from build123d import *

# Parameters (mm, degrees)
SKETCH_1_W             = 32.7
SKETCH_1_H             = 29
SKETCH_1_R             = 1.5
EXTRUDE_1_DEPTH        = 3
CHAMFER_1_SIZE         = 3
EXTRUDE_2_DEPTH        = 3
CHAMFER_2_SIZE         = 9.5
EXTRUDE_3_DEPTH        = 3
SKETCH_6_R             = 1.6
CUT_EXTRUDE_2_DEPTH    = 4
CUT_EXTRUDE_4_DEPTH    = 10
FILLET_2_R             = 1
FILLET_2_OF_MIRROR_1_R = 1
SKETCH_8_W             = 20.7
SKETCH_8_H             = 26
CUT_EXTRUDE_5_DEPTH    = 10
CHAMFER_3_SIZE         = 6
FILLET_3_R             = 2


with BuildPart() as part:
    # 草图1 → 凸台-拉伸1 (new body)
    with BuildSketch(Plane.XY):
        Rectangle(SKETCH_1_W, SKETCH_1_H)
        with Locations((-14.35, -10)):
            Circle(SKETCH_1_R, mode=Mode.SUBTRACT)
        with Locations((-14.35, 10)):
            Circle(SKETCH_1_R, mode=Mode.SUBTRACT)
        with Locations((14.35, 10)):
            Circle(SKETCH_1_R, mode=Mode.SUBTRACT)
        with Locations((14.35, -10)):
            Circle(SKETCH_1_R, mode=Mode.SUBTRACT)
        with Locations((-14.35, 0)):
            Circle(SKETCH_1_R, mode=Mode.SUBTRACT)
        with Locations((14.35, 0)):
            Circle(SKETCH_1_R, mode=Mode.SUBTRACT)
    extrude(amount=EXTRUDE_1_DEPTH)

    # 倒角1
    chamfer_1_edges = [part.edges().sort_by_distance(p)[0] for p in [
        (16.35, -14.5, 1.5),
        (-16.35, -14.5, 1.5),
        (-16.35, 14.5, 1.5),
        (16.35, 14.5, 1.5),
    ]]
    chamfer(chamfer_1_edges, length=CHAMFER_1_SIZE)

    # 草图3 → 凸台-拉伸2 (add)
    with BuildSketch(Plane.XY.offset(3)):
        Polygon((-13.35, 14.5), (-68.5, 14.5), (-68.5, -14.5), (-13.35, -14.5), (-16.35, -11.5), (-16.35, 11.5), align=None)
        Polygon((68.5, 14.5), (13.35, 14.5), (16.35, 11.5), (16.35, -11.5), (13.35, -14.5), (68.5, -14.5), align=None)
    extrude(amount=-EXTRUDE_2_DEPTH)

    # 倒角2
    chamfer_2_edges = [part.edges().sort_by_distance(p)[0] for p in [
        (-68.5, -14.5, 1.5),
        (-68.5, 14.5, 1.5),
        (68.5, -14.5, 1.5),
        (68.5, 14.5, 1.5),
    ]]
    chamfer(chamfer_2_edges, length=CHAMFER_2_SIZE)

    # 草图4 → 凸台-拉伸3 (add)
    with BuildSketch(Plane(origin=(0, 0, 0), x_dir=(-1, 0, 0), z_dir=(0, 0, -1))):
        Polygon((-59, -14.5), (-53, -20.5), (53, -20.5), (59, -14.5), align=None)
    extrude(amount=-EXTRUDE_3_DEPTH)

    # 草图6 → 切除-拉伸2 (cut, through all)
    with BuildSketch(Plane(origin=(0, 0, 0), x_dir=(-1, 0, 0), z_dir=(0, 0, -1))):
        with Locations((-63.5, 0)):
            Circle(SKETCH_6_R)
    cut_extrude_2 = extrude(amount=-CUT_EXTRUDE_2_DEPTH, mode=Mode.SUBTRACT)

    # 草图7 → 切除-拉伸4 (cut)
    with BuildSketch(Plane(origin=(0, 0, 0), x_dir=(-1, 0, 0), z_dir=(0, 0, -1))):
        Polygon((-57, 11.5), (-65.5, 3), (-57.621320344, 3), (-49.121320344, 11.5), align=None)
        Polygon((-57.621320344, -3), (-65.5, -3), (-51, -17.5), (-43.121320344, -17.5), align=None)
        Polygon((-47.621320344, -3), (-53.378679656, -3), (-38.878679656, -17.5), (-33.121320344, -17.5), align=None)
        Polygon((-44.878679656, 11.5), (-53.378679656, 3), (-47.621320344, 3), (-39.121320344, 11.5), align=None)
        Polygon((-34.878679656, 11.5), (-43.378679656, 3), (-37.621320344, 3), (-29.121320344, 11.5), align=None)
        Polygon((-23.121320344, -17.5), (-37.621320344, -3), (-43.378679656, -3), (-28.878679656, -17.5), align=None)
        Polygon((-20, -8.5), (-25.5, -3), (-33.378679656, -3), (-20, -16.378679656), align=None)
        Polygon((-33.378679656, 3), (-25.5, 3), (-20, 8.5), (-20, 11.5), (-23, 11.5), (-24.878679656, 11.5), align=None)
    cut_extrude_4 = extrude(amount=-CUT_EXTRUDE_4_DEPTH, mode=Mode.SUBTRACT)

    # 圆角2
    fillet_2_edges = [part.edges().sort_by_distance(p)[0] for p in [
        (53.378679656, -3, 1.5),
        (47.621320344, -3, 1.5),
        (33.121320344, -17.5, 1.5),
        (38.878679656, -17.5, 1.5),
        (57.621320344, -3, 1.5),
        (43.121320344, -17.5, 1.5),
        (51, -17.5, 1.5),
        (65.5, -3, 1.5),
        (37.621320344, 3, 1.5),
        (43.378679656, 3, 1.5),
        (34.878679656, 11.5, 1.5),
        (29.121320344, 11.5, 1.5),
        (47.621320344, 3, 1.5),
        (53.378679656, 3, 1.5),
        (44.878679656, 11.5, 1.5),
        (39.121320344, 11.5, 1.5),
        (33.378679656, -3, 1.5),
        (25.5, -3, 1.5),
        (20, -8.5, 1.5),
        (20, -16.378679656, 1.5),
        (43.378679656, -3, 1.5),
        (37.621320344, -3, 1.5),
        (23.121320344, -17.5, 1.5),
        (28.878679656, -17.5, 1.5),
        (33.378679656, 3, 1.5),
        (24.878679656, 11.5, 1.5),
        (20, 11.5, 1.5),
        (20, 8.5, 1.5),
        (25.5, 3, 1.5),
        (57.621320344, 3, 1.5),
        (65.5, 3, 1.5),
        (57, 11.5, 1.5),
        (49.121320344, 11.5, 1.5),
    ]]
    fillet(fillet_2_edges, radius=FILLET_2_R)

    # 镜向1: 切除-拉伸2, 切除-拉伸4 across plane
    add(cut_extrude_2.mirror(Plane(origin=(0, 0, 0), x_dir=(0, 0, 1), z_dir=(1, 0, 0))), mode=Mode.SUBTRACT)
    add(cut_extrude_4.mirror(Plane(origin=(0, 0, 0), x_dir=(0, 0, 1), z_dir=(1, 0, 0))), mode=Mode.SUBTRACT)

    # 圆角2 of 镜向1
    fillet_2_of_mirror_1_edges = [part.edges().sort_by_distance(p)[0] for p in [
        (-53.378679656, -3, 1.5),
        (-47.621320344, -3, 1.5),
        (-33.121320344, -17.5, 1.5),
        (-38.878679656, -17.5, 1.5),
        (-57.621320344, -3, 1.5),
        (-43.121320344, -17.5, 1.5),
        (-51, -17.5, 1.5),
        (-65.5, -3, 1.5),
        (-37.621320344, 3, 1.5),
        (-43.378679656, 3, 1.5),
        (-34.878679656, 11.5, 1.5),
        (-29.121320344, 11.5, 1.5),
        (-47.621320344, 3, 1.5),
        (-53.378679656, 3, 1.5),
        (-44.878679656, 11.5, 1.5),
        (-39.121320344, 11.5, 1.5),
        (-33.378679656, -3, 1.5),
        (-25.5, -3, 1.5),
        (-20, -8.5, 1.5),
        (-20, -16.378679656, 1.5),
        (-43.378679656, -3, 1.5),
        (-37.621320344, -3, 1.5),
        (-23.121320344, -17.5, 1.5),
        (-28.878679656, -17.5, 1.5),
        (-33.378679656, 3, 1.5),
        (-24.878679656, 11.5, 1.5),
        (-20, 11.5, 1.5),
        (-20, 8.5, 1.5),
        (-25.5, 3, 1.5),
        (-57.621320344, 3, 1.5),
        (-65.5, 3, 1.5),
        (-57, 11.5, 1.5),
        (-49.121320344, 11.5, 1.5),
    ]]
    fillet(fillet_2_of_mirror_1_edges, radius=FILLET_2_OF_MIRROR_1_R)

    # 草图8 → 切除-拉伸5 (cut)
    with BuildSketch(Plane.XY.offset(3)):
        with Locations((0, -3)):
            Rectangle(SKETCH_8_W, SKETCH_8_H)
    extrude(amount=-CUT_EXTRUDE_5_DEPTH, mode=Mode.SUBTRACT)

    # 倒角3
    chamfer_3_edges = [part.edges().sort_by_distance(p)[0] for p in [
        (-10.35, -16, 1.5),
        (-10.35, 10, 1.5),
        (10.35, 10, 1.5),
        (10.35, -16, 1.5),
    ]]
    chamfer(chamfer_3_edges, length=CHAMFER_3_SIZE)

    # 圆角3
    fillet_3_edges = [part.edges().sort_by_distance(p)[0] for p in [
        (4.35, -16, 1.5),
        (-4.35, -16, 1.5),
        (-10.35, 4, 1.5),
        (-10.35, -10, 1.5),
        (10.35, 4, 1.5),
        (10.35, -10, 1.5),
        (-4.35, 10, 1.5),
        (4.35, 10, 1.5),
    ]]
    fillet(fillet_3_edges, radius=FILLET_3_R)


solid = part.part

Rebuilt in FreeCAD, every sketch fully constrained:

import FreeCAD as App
import Part
import Sketcher

V = App.Vector
Q = App.Units.Quantity


def edges_at(feature, points):
    """Names of the edges that pass closest to the given points."""
    edges = feature.Shape.Edges
    near = lambda p: min(range(len(edges)), key=lambda i: edges[i].distToShape(Part.Vertex(*p))[0])
    return sorted({f"Edge{near(p) + 1}" for p in points})

doc = App.newDocument("Part")
body = doc.addObject("PartDesign::Body", "Body")

# Sketch on XY plane
sketch1 = body.newObject("Sketcher::SketchObject", "Sketch")
sketch1.AttachmentSupport = (doc.getObject("XY_Plane"), [""])
sketch1.MapMode = "FlatFace"
sketch1.addGeometry([
    Part.LineSegment(V(-16.4, 14.5, 0), V(-16.4, -14.5, 0)),  # 0
    Part.LineSegment(V(-16.4, -14.5, 0), V(16.4, -14.5, 0)),  # 1
    Part.LineSegment(V(16.4, -14.5, 0), V(16.4, 14.5, 0)),  # 2
    Part.LineSegment(V(16.4, 14.5, 0), V(-16.4, 14.5, 0)),  # 3
    Part.Circle(V(-14.3, -10, 0), V(0, 0, 1), 1.5),  # 4
    Part.Circle(V(14.3, -10, 0), V(0, 0, 1), 1.5),  # 5
    Part.Circle(V(-14.3, 0, 0), V(0, 0, 1), 1.5),  # 6
    Part.Circle(V(-14.3, 10, 0), V(0, 0, 1), 1.5),  # 7
    Part.Circle(V(14.3, 0, 0), V(0, 0, 1), 1.5),  # 8
    Part.Circle(V(14.3, 10, 0), V(0, 0, 1), 1.5),  # 9
], False)
sketch1.addConstraint([
    Sketcher.Constraint("Coincident", 0, 2, 1, 1),
    Sketcher.Constraint("Coincident", 1, 2, 2, 1),
    Sketcher.Constraint("Coincident", 2, 2, 3, 1),
    Sketcher.Constraint("Coincident", 3, 2, 0, 1),
    Sketcher.Constraint("Vertical", 0),
    Sketcher.Constraint("Horizontal", 1),
    Sketcher.Constraint("Vertical", 2),
    Sketcher.Constraint("Horizontal", 3),
    Sketcher.Constraint("Equal", 4, 5),
    Sketcher.Constraint("Equal", 5, 6),
    Sketcher.Constraint("Equal", 6, 7),
    Sketcher.Constraint("Equal", 7, 8),
    Sketcher.Constraint("Equal", 8, 9),
    Sketcher.Constraint("Symmetric", 5, 3, 7, 3, -1, 1),
    Sketcher.Constraint("Symmetric", 6, 3, 8, 3, -1, 1),
    Sketcher.Constraint("Symmetric", 4, 3, 9, 3, -1, 1),
    Sketcher.Constraint("Symmetric", 0, 2, 2, 2, -1, 1),
    Sketcher.Constraint("Symmetric", 4, 3, 5, 3, -2),
    Sketcher.Constraint("PointOnObject", 6, 3, -1),
    Sketcher.Constraint("Vertical", 4, 3, 6, 3),
    Sketcher.Constraint("Diameter", 4, Q("3 mm")),
    Sketcher.Constraint("DistanceY", 0, 2, 0, 1, Q("29 mm")),
    Sketcher.Constraint("DistanceX", 1, 1, 1, 2, Q("32.7 mm")),
    Sketcher.Constraint("DistanceY", 4, 3, -1, 1, Q("10 mm")),
    Sketcher.Constraint("DistanceX", 0, 2, 4, 3, Q("2 mm")),
])
pad1 = body.newObject("PartDesign::Pad", "Pad")
pad1.Profile = sketch1
pad1.Length = 3
doc.recompute()

chamfer = body.newObject("PartDesign::Chamfer", "Chamfer")
chamfer.Base = (pad1, edges_at(pad1, [
    (16.35, -14.5, 1.5),
    (-16.35, -14.5, 1.5),
    (-16.35, 14.5, 1.5),
    (16.35, 14.5, 1.5),
]))
chamfer.Size = 3

# Sketch on XY plane
sketch2 = body.newObject("Sketcher::SketchObject", "Sketch001")
sketch2.AttachmentSupport = (doc.getObject("XY_Plane"), [""])
sketch2.MapMode = "FlatFace"
sketch2.AttachmentOffset = App.Placement(V(0, 0, 3), App.Rotation())
sketch2.addGeometry([
    Part.LineSegment(V(-13.3, 14.5, 0), V(-68.5, 14.5, 0)),  # 0
    Part.LineSegment(V(-68.5, 14.5, 0), V(-68.5, -14.5, 0)),  # 1
    Part.LineSegment(V(-68.5, -14.5, 0), V(-13.3, -14.5, 0)),  # 2
    Part.LineSegment(V(-13.3, -14.5, 0), V(-16.4, -11.5, 0)),  # 3
    Part.LineSegment(V(-16.4, -11.5, 0), V(-16.4, 11.5, 0)),  # 4
    Part.LineSegment(V(-16.4, 11.5, 0), V(-13.3, 14.5, 0)),  # 5
    Part.LineSegment(V(68.5, 14.5, 0), V(13.3, 14.5, 0)),  # 6
    Part.LineSegment(V(13.3, 14.5, 0), V(16.4, 11.5, 0)),  # 7
    Part.LineSegment(V(16.4, 11.5, 0), V(16.4, -11.5, 0)),  # 8
    Part.LineSegment(V(16.4, -11.5, 0), V(13.3, -14.5, 0)),  # 9
    Part.LineSegment(V(13.3, -14.5, 0), V(68.5, -14.5, 0)),  # 10
    Part.LineSegment(V(68.5, -14.5, 0), V(68.5, 14.5, 0)),  # 11
], False)
sketch2.addConstraint([
    Sketcher.Constraint("Coincident", 0, 2, 1, 1),
    Sketcher.Constraint("Coincident", 1, 2, 2, 1),
    Sketcher.Constraint("Coincident", 2, 2, 3, 1),
    Sketcher.Constraint("Coincident", 3, 2, 4, 1),
    Sketcher.Constraint("Coincident", 4, 2, 5, 1),
    Sketcher.Constraint("Coincident", 5, 2, 0, 1),
    Sketcher.Constraint("Coincident", 6, 2, 7, 1),
    Sketcher.Constraint("Coincident", 7, 2, 8, 1),
    Sketcher.Constraint("Coincident", 8, 2, 9, 1),
    Sketcher.Constraint("Coincident", 9, 2, 10, 1),
    Sketcher.Constraint("Coincident", 10, 2, 11, 1),
    Sketcher.Constraint("Coincident", 11, 2, 6, 1),
    Sketcher.Constraint("Horizontal", 0),
    Sketcher.Constraint("Vertical", 1),
    Sketcher.Constraint("Horizontal", 2),
    Sketcher.Constraint("Vertical", 4),
    Sketcher.Constraint("Horizontal", 6),
    Sketcher.Constraint("Vertical", 8),
    Sketcher.Constraint("Horizontal", 10),
    Sketcher.Constraint("Vertical", 11),
    Sketcher.Constraint("Symmetric", 2, 2, 6, 2, -1, 1),
    Sketcher.Constraint("Symmetric", 3, 2, 7, 2, -1, 1),
    Sketcher.Constraint("Symmetric", 5, 2, 9, 2, -1, 1),
    Sketcher.Constraint("Symmetric", 5, 2, 6, 2, -2),
    Sketcher.Constraint("Perpendicular", 3, 5),
    Sketcher.Constraint("Perpendicular", 7, 9),
    Sketcher.Constraint("Horizontal", 4, 2, 7, 2),
    Sketcher.Constraint("Equal", 2, 6),
    Sketcher.Constraint("DistanceY", 1, 2, 1, 1, Q("29 mm")),
    Sketcher.Constraint("DistanceY", 4, 1, 4, 2, Q("23 mm")),
    Sketcher.Constraint("DistanceX", 0, 2, 0, 1, Q("55.15 mm")),
    Sketcher.Constraint("DistanceX", 0, 2, -1, 1, Q("68.5 mm")),
])
pad2 = body.newObject("PartDesign::Pad", "Pad001")
pad2.Profile = sketch2
pad2.Length = 3
pad2.Reversed = True
doc.recompute()

chamfer2 = body.newObject("PartDesign::Chamfer", "Chamfer001")
chamfer2.Base = (pad2, edges_at(pad2, [
    (-68.5, -14.5, 1.5),
    (-68.5, 14.5, 1.5),
    (68.5, -14.5, 1.5),
    (68.5, 14.5, 1.5),
]))
chamfer2.Size = 9.5

# Sketch on XY plane
sketch3 = body.newObject("Sketcher::SketchObject", "Sketch002")
sketch3.AttachmentSupport = (doc.getObject("XY_Plane"), [""])
sketch3.MapMode = "FlatFace"
sketch3.addGeometry([
    Part.LineSegment(V(59, -14, 0), V(53, -20, 0)),
    Part.LineSegment(V(53, -20, 0), V(-53, -20, 0)),
    Part.LineSegment(V(-53, -20, 0), V(-59, -14, 0)),
    Part.LineSegment(V(-59, -14, 0), V(59, -14, 0)),
], False)
sketch3.addConstraint([
    Sketcher.Constraint("Coincident", 0, 2, 1, 1),
    Sketcher.Constraint("Coincident", 1, 2, 2, 1),
    Sketcher.Constraint("Coincident", 2, 2, 3, 1),
    Sketcher.Constraint("Coincident", 3, 2, 0, 1),
    Sketcher.Constraint("Horizontal", 1),
    Sketcher.Constraint("Horizontal", 3),
    Sketcher.Constraint("Perpendicular", 0, 2),
    Sketcher.Constraint("Equal", 0, 2),
    Sketcher.Constraint("DistanceX", 1, 2, 1, 1, Q("106 mm")),
    Sketcher.Constraint("DistanceX", 3, 1, 3, 2, Q("118 mm")),
    Sketcher.Constraint("DistanceX", -1, 1, 0, 2, Q("53 mm")),
    Sketcher.Constraint("DistanceY", 0, 2, -1, 1, Q("20.5 mm")),
])
pad3 = body.newObject("PartDesign::Pad", "Pad002")
pad3.Profile = sketch3
pad3.Length = 3

# Sketch on XY plane
sketch4 = body.newObject("Sketcher::SketchObject", "Sketch003")
sketch4.AttachmentSupport = (doc.getObject("XY_Plane"), [""])
sketch4.MapMode = "FlatFace"
sketch4.addGeometry(Part.Circle(V(63.5, 0, 0), V(0, 0, 1), 1.6), False)
sketch4.addConstraint([
    Sketcher.Constraint("PointOnObject", 0, 3, -1),
    Sketcher.Constraint("Diameter", 0, Q("3.2 mm")),
    Sketcher.Constraint("DistanceX", -1, 1, 0, 3, Q("63.5 mm")),
])
pocket1 = body.newObject("PartDesign::Pocket", "Pocket")
pocket1.Profile = sketch4
pocket1.Type = "ThroughAll"
pocket1.Reversed = True

# Sketch on XY plane
sketch5 = body.newObject("Sketcher::SketchObject", "Sketch004")
sketch5.AttachmentSupport = (doc.getObject("XY_Plane"), [""])
sketch5.MapMode = "FlatFace"
sketch5.addGeometry([
    Part.LineSegment(V(57, 11.5, 0), V(65.5, 3, 0)),  # 0
    Part.LineSegment(V(65.5, 3, 0), V(57.6, 3, 0)),  # 1
    Part.LineSegment(V(57.6, 3, 0), V(49.1, 11.5, 0)),  # 2
    Part.LineSegment(V(49.1, 11.5, 0), V(57, 11.5, 0)),  # 3
    Part.LineSegment(V(57.6, -3, 0), V(65.5, -3, 0)),  # 4
    Part.LineSegment(V(65.5, -3, 0), V(51, -17.5, 0)),  # 5
    Part.LineSegment(V(51, -17.5, 0), V(43.1, -17.5, 0)),  # 6
    Part.LineSegment(V(43.1, -17.5, 0), V(57.6, -3, 0)),  # 7
    Part.LineSegment(V(47.6, -3, 0), V(53.4, -3, 0)),  # 8
    Part.LineSegment(V(53.4, -3, 0), V(38.9, -17.5, 0)),  # 9
    Part.LineSegment(V(38.9, -17.5, 0), V(33.1, -17.5, 0)),  # 10
    Part.LineSegment(V(33.1, -17.5, 0), V(47.6, -3, 0)),  # 11
    Part.LineSegment(V(44.9, 11.5, 0), V(53.4, 3, 0)),  # 12
    Part.LineSegment(V(53.4, 3, 0), V(47.6, 3, 0)),  # 13
    Part.LineSegment(V(47.6, 3, 0), V(39.1, 11.5, 0)),  # 14
    Part.LineSegment(V(39.1, 11.5, 0), V(44.9, 11.5, 0)),  # 15
    Part.LineSegment(V(34.9, 11.5, 0), V(43.4, 3, 0)),  # 16
    Part.LineSegment(V(43.4, 3, 0), V(37.6, 3, 0)),  # 17
    Part.LineSegment(V(37.6, 3, 0), V(29.1, 11.5, 0)),  # 18
    Part.LineSegment(V(29.1, 11.5, 0), V(34.9, 11.5, 0)),  # 19
    Part.LineSegment(V(23.1, -17.5, 0), V(37.6, -3, 0)),  # 20
    Part.LineSegment(V(37.6, -3, 0), V(43.4, -3, 0)),  # 21
    Part.LineSegment(V(43.4, -3, 0), V(28.9, -17.5, 0)),  # 22
    Part.LineSegment(V(28.9, -17.5, 0), V(23.1, -17.5, 0)),  # 23
    Part.LineSegment(V(20, -8.5, 0), V(25.5, -3, 0)),  # 24
    Part.LineSegment(V(25.5, -3, 0), V(33.4, -3, 0)),  # 25
    Part.LineSegment(V(33.4, -3, 0), V(20, -16.4, 0)),  # 26
    Part.LineSegment(V(20, -16.4, 0), V(20, -8.5, 0)),  # 27
    Part.LineSegment(V(33.4, 3, 0), V(25.5, 3, 0)),  # 28
    Part.LineSegment(V(25.5, 3, 0), V(20, 8.5, 0)),  # 29
    Part.LineSegment(V(20, 8.5, 0), V(20, 11.5, 0)),  # 30
    Part.LineSegment(V(20, 11.5, 0), V(24.9, 11.5, 0)),  # 31
    Part.LineSegment(V(24.9, 11.5, 0), V(33.4, 3, 0)),  # 32
], False)
sketch5.addConstraint([
    Sketcher.Constraint("Coincident", 0, 2, 1, 1),
    Sketcher.Constraint("Coincident", 1, 2, 2, 1),
    Sketcher.Constraint("Coincident", 2, 2, 3, 1),
    Sketcher.Constraint("Coincident", 3, 2, 0, 1),
    Sketcher.Constraint("Coincident", 4, 2, 5, 1),
    Sketcher.Constraint("Coincident", 5, 2, 6, 1),
    Sketcher.Constraint("Coincident", 6, 2, 7, 1),
    Sketcher.Constraint("Coincident", 7, 2, 4, 1),
    Sketcher.Constraint("Coincident", 8, 2, 9, 1),
    Sketcher.Constraint("Coincident", 9, 2, 10, 1),
    Sketcher.Constraint("Coincident", 10, 2, 11, 1),
    Sketcher.Constraint("Coincident", 11, 2, 8, 1),
    Sketcher.Constraint("Coincident", 12, 2, 13, 1),
    Sketcher.Constraint("Coincident", 13, 2, 14, 1),
    Sketcher.Constraint("Coincident", 14, 2, 15, 1),
    Sketcher.Constraint("Coincident", 15, 2, 12, 1),
    Sketcher.Constraint("Coincident", 16, 2, 17, 1),
    Sketcher.Constraint("Coincident", 17, 2, 18, 1),
    Sketcher.Constraint("Coincident", 18, 2, 19, 1),
    Sketcher.Constraint("Coincident", 19, 2, 16, 1),
    Sketcher.Constraint("Coincident", 20, 2, 21, 1),
    Sketcher.Constraint("Coincident", 21, 2, 22, 1),
    Sketcher.Constraint("Coincident", 22, 2, 23, 1),
    Sketcher.Constraint("Coincident", 23, 2, 20, 1),
    Sketcher.Constraint("Coincident", 24, 2, 25, 1),
    Sketcher.Constraint("Coincident", 25, 2, 26, 1),
    Sketcher.Constraint("Coincident", 26, 2, 27, 1),
    Sketcher.Constraint("Coincident", 27, 2, 24, 1),
    Sketcher.Constraint("Coincident", 28, 2, 29, 1),
    Sketcher.Constraint("Coincident", 29, 2, 30, 1),
    Sketcher.Constraint("Coincident", 30, 2, 31, 1),
    Sketcher.Constraint("Coincident", 31, 2, 32, 1),
    Sketcher.Constraint("Coincident", 32, 2, 28, 1),
    Sketcher.Constraint("Horizontal", 1),
    Sketcher.Constraint("Horizontal", 3),
    Sketcher.Constraint("Horizontal", 4),
    Sketcher.Constraint("Horizontal", 6),
    Sketcher.Constraint("Horizontal", 8),
    Sketcher.Constraint("Horizontal", 10),
    Sketcher.Constraint("Horizontal", 13),
    Sketcher.Constraint("Horizontal", 15),
    Sketcher.Constraint("Horizontal", 17),
    Sketcher.Constraint("Horizontal", 19),
    Sketcher.Constraint("Horizontal", 21),
    Sketcher.Constraint("Horizontal", 23),
    Sketcher.Constraint("Horizontal", 25),
    Sketcher.Constraint("Vertical", 27),
    Sketcher.Constraint("Horizontal", 28),
    Sketcher.Constraint("Vertical", 30),
    Sketcher.Constraint("Horizontal", 31),
    Sketcher.Constraint("Symmetric", 0, 2, 4, 2, -1),
    Sketcher.Constraint("Symmetric", 8, 2, 12, 2, -1),
    Sketcher.Constraint("Symmetric", 17, 2, 20, 2, -1),
    Sketcher.Constraint("Symmetric", 24, 2, 28, 2, -1),
    Sketcher.Constraint("Symmetric", 27, 2, 29, 2, -1),
    Sketcher.Constraint("Parallel", 0, 2),
    Sketcher.Constraint("Perpendicular", 2, 5),
    Sketcher.Constraint("Parallel", 5, 7),
    Sketcher.Constraint("Parallel", 7, 9),
    Sketcher.Constraint("Parallel", 9, 11),
    Sketcher.Constraint("Perpendicular", 11, 12),
    Sketcher.Constraint("Parallel", 12, 14),
    Sketcher.Constraint("Parallel", 14, 16),
    Sketcher.Constraint("Parallel", 16, 18),
    Sketcher.Constraint("Perpendicular", 18, 20),
    Sketcher.Constraint("Parallel", 20, 22),
    Sketcher.Constraint("Parallel", 22, 24),
    Sketcher.Constraint("Parallel", 24, 26),
    Sketcher.Constraint("Perpendicular", 26, 29),
    Sketcher.Constraint("Parallel", 29, 32),
    Sketcher.Constraint("Horizontal", 7, 2, 8, 2),
    Sketcher.Constraint("Horizontal", 6, 2, 9, 2),
    Sketcher.Constraint("Horizontal", 3, 2, 14, 2),
    Sketcher.Constraint("Horizontal", 13, 2, 16, 2),
    Sketcher.Constraint("Horizontal", 15, 2, 18, 2),
    Sketcher.Constraint("Horizontal", 10, 2, 22, 2),
    Sketcher.Constraint("Horizontal", 21, 2, 24, 2),
    Sketcher.Constraint("Horizontal", 19, 2, 30, 2),
    Sketcher.Constraint("Vertical", 1, 2, 7, 2),
    Sketcher.Constraint("Vertical", 11, 2, 13, 2),
    Sketcher.Constraint("Vertical", 16, 2, 21, 2),
    Sketcher.Constraint("Vertical", 25, 2, 32, 2),
    Sketcher.Constraint("Equal", 15, 17),
    Sketcher.Constraint("Equal", 6, 25),
    Sketcher.Constraint("DistanceY", 30, 1, 30, 2, Q("3 mm")),
    Sketcher.Constraint("DistanceY", -1, 1, 0, 2, Q("3 mm")),
    Sketcher.Constraint("DistanceX", -1, 1, 3, 2, Q("57 mm")),
    Sketcher.Constraint("DistanceX", -1, 1, 5, 2, Q("51 mm")),
    Sketcher.Constraint("DistanceX", -1, 1, 26, 2, Q("20 mm")),
    Sketcher.Constraint("DistanceY", 5, 2, 2, 2, Q("29 mm")),
    Sketcher.Constraint("DistanceX", 10, 2, 6, 2, Q("10 mm")),
    Sketcher.Constraint("DistanceX", 16, 2, 12, 2, Q("10 mm")),
    Sketcher.Constraint("DistanceX", 25, 2, 21, 2, Q("10 mm")),
    Sketcher.Constraint("DistanceX", 1, 2, 1, 1, Q("7.87868 mm")),
])
pocket2 = body.newObject("PartDesign::Pocket", "Pocket001")
pocket2.Profile = sketch5
pocket2.Length = 10
pocket2.Reversed = True
doc.recompute()

fillet = body.newObject("PartDesign::Fillet", "Fillet")
fillet.Base = (pocket2, edges_at(pocket2, [
    (53.379, -3, 1.5),
    (47.621, -3, 1.5),
    (33.121, -17.5, 1.5),
    (38.879, -17.5, 1.5),
    (57.621, -3, 1.5),
    (43.121, -17.5, 1.5),
    (51, -17.5, 1.5),
    (65.5, -3, 1.5),
    (37.621, 3, 1.5),
    (43.379, 3, 1.5),
    (34.879, 11.5, 1.5),
    (29.121, 11.5, 1.5),
    (47.621, 3, 1.5),
    (53.379, 3, 1.5),
    (44.879, 11.5, 1.5),
    (39.121, 11.5, 1.5),
    (33.379, -3, 1.5),
    (25.5, -3, 1.5),
    (20, -8.5, 1.5),
    (20, -16.379, 1.5),
    (43.379, -3, 1.5),
    (37.621, -3, 1.5),
    (23.121, -17.5, 1.5),
    (28.879, -17.5, 1.5),
    (33.379, 3, 1.5),
    (24.879, 11.5, 1.5),
    (20, 11.5, 1.5),
    (20, 8.5, 1.5),
    (25.5, 3, 1.5),
    (57.621, 3, 1.5),
    (65.5, 3, 1.5),
    (57, 11.5, 1.5),
    (49.121, 11.5, 1.5),
]))
fillet.Radius = 1
doc.recompute()

mirrored = body.newObject("PartDesign::Mirrored", "Mirrored")
mirrored.Originals = [pocket1, pocket2]
mirrored.MirrorPlane = (doc.getObject("YZ_Plane"), [""])
body.Tip = mirrored
doc.recompute()

fillet2 = body.newObject("PartDesign::Fillet", "Fillet001")
fillet2.Base = (mirrored, edges_at(mirrored, [
    (-53.379, -3, 1.5),
    (-47.621, -3, 1.5),
    (-33.121, -17.5, 1.5),
    (-38.879, -17.5, 1.5),
    (-57.621, -3, 1.5),
    (-43.121, -17.5, 1.5),
    (-51, -17.5, 1.5),
    (-65.5, -3, 1.5),
    (-37.621, 3, 1.5),
    (-43.379, 3, 1.5),
    (-34.879, 11.5, 1.5),
    (-29.121, 11.5, 1.5),
    (-47.621, 3, 1.5),
    (-53.379, 3, 1.5),
    (-44.879, 11.5, 1.5),
    (-39.121, 11.5, 1.5),
    (-33.379, -3, 1.5),
    (-25.5, -3, 1.5),
    (-20, -8.5, 1.5),
    (-20, -16.379, 1.5),
    (-43.379, -3, 1.5),
    (-37.621, -3, 1.5),
    (-23.121, -17.5, 1.5),
    (-28.879, -17.5, 1.5),
    (-33.379, 3, 1.5),
    (-24.879, 11.5, 1.5),
    (-20, 11.5, 1.5),
    (-20, 8.5, 1.5),
    (-25.5, 3, 1.5),
    (-57.621, 3, 1.5),
    (-65.5, 3, 1.5),
    (-57, 11.5, 1.5),
    (-49.121, 11.5, 1.5),
]))
fillet2.Radius = 1

# Sketch on XY plane
sketch6 = body.newObject("Sketcher::SketchObject", "Sketch005")
sketch6.AttachmentSupport = (doc.getObject("XY_Plane"), [""])
sketch6.MapMode = "FlatFace"
sketch6.AttachmentOffset = App.Placement(V(0, 0, 3), App.Rotation())
sketch6.addGeometry([
    Part.LineSegment(V(-10, 10, 0), V(-10, -16, 0)),
    Part.LineSegment(V(-10, -16, 0), V(10, -16, 0)),
    Part.LineSegment(V(10, -16, 0), V(10, 10, 0)),
    Part.LineSegment(V(10, 10, 0), V(-10, 10, 0)),
], False)
sketch6.addConstraint([
    Sketcher.Constraint("Coincident", 0, 2, 1, 1),
    Sketcher.Constraint("Coincident", 1, 2, 2, 1),
    Sketcher.Constraint("Coincident", 2, 2, 3, 1),
    Sketcher.Constraint("Coincident", 3, 2, 0, 1),
    Sketcher.Constraint("Vertical", 0),
    Sketcher.Constraint("Horizontal", 1),
    Sketcher.Constraint("Vertical", 2),
    Sketcher.Constraint("Horizontal", 3),
    Sketcher.Constraint("DistanceY", 0, 2, 0, 1, Q("26 mm")),
    Sketcher.Constraint("DistanceX", 1, 1, 1, 2, Q("20.7 mm")),
    Sketcher.Constraint("DistanceY", 0, 2, -1, 1, Q("16 mm")),
    Sketcher.Constraint("DistanceX", 0, 2, -1, 1, Q("10.35 mm")),
])
pocket3 = body.newObject("PartDesign::Pocket", "Pocket002")
pocket3.Profile = sketch6
pocket3.Length = 10
doc.recompute()

chamfer3 = body.newObject("PartDesign::Chamfer", "Chamfer002")
chamfer3.Base = (pocket3, edges_at(pocket3, [
    (-10.35, -16, 1.5),
    (-10.35, 10, 1.5),
    (10.35, 10, 1.5),
    (10.35, -16, 1.5),
]))
chamfer3.Size = 6
doc.recompute()

fillet3 = body.newObject("PartDesign::Fillet", "Fillet002")
fillet3.Base = (chamfer3, edges_at(chamfer3, [
    (4.35, -16, 1.5),
    (-4.35, -16, 1.5),
    (-10.35, 4, 1.5),
    (-10.35, -10, 1.5),
    (10.35, 4, 1.5),
    (10.35, -10, 1.5),
    (-4.35, 10, 1.5),
    (4.35, 10, 1.5),
]))
fillet3.Radius = 2

doc.recompute()
